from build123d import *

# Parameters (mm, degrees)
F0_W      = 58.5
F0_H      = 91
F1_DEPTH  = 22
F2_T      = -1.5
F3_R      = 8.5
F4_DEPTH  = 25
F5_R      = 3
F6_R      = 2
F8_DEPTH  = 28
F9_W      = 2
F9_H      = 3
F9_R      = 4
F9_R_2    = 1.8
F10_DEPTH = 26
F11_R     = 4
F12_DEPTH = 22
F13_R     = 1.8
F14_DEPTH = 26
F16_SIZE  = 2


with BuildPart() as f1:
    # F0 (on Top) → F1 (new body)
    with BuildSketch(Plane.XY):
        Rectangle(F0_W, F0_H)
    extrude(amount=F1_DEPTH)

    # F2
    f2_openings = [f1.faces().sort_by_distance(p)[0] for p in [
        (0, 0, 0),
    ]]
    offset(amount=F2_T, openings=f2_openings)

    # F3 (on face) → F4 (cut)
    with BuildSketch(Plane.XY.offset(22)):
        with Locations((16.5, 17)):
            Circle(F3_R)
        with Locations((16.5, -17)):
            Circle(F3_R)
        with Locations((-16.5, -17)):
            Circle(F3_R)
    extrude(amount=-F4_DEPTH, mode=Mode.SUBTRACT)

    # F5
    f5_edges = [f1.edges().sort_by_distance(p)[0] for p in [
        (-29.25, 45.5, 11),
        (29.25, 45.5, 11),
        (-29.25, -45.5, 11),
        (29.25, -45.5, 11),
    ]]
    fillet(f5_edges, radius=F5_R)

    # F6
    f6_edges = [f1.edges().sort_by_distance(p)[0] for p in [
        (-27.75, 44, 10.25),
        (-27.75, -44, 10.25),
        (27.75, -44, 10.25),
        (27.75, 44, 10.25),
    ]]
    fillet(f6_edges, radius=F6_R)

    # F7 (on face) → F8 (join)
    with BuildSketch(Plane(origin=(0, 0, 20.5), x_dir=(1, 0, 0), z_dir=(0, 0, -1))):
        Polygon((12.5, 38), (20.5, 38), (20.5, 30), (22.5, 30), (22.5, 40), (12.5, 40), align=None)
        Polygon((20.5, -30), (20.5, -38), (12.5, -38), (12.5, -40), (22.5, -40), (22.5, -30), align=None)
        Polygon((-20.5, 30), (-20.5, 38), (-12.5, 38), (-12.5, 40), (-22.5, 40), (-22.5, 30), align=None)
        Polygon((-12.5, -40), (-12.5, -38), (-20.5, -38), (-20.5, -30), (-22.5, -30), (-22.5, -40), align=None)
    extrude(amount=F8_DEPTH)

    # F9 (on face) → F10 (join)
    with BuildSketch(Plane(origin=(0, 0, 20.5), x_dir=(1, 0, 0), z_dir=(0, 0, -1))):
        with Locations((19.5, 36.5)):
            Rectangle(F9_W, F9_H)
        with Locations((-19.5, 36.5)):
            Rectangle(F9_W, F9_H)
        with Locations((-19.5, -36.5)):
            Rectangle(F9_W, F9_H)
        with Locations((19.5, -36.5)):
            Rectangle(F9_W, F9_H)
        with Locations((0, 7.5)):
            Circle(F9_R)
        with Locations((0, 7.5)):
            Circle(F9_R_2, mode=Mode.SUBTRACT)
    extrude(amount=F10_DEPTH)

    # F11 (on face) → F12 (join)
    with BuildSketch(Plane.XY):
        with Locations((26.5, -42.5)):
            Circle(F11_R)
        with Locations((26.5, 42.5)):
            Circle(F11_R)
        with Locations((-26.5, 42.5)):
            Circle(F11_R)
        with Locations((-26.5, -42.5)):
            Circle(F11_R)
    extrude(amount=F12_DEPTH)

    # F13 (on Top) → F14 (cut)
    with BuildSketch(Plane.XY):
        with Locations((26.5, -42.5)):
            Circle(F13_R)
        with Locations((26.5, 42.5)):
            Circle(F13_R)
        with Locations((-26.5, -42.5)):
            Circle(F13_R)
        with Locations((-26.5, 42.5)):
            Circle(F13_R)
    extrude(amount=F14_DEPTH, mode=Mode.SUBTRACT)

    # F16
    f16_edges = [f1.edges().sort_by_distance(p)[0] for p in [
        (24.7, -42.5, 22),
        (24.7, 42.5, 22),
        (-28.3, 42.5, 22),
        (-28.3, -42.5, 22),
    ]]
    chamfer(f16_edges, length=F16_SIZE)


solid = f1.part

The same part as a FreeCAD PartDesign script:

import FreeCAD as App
import Part
import Sketcher
from FreeCAD import Vector
Q = App.Units.Quantity


def edges_at(feature, points):
    """Names of the edges that pass closest to the given points."""
    edges = feature.Shape.Edges
    near = lambda p: min(range(len(edges)), key=lambda i: edges[i].distToShape(Part.Vertex(*p))[0])
    return sorted({f"Edge{near(p) + 1}" for p in points})


def faces_at(feature, points):
    """Names of the faces that lie closest to the given points."""
    faces = feature.Shape.Faces
    near = lambda p: min(range(len(faces)), key=lambda i: faces[i].distToShape(Part.Vertex(*p))[0])
    return sorted({f"Face{near(p) + 1}" for p in points})


def add_polygon(sketch, points):
    """Adds a closed chain of lines whose ends are joined by coincident constraints."""
    first, n = sketch.GeometryCount, len(points)
    for a, b in zip(points, points[1:] + points[:1]):
        sketch.addGeometry(Part.LineSegment(App.Vector(*a, 0), App.Vector(*b, 0)), False)
    for i in range(n):
        sketch.addConstraint(Sketcher.Constraint("Coincident", first + i, 2, first + (i + 1) % n, 1))

doc = App.newDocument("Part")
params = doc.addObject("Spreadsheet::Sheet", "Params")
for row, (alias, value) in enumerate([
    ("sketch1_height", "91 mm"),
    ("sketch1_width", "58.5 mm"),
    ("pad1_length", "22 mm"),
    ("thickness_wall", "1.5 mm"),
    ("sketch2_diameter", "17 mm"),
    ("pocket1_length", "25 mm"),
    ("fillet_radius", "3 mm"),
    ("fillet2_radius", "2 mm"),
    ("sketch3_width", "8 mm"),
    ("sketch3_width2", "2 mm"),
    ("pad2_length", "28 mm"),
    ("sketch4_diameter", "8 mm"),
    ("sketch4_diameter2", "3.6 mm"),
    ("sketch4_width", "2 mm"),
    ("sketch4_height", "3 mm"),
    ("pad3_length", "26 mm"),
    ("sketch5_diameter", "8 mm"),
    ("pad4_length", "22 mm"),
    ("sketch6_diameter", "3.6 mm"),
    ("pocket2_length", "26 mm"),
    ("chamfer_size", "2 mm"),
], start=1):
    params.set(f"A{row}", alias)
    params.set(f"B{row}", "=" + value)
    params.setAlias(f"B{row}", alias)

body = doc.addObject("PartDesign::Body", "Body")

sketch1 = body.newObject("Sketcher::SketchObject", "Sketch")
sketch1.AttachmentSupport = (doc.getObject("XY_Plane"), [""])
sketch1.MapMode = "FlatFace"
add_polygon(sketch1, [(-29.25, 45.5), (-29.25, -45.5), (29.25, -45.5), (29.25, 45.5)])
sketch1.addConstraint(Sketcher.Constraint("Vertical", 0))
sketch1.addConstraint(Sketcher.Constraint("Horizontal", 1))
sketch1.addConstraint(Sketcher.Constraint("Vertical", 2))
sketch1.addConstraint(Sketcher.Constraint("Horizontal", 3))
sketch1.addConstraint(Sketcher.Constraint("Symmetric", 0, 2, 2, 2, -1, 1))
sketch1.addConstraint(Sketcher.Constraint("DistanceY", 0, 2, 0, 1, Q("91 mm")))
sketch1.addConstraint(Sketcher.Constraint("DistanceX", 1, 1, 1, 2, Q("58.5 mm")))
sketch1.setExpression("Constraints[9]", "Params.sketch1_height")
sketch1.setExpression("Constraints[10]", "Params.sketch1_width")
pad1 = body.newObject("PartDesign::Pad", "Pad")
pad1.Profile = sketch1
pad1.setExpression("Length", "Params.pad1_length")
doc.recompute()

thickness = body.newObject("PartDesign::Thickness", "Thickness")
thickness.Base = (pad1, faces_at(pad1, [(0, 0, 0)]))
thickness.setExpression("Value", "Params.thickness_wall")
thickness.Reversed = True
thickness.Join = "Arc"

sketch2 = body.newObject("Sketcher::SketchObject", "Sketch001")
sketch2.AttachmentSupport = (doc.getObject("XY_Plane"), [""])
sketch2.MapMode = "FlatFace"
sketch2.AttachmentOffset = App.Placement(Vector(0, 0, 22), App.Rotation())
sketch2.addGeometry(Part.Circle(Vector(16.5, 17, 0), Vector(0, 0, 1), 8.5), False)
sketch2.addGeometry(Part.Circle(Vector(16.5, -17, 0), Vector(0, 0, 1), 8.5), False)
sketch2.addGeometry(Part.Circle(Vector(-16.5, -17, 0), Vector(0, 0, 1), 8.5), False)
sketch2.addConstraint(Sketcher.Constraint("Equal", 0, 1))
sketch2.addConstraint(Sketcher.Constraint("Equal", 1, 2))
sketch2.addConstraint(Sketcher.Constraint("Symmetric", 0, 3, 2, 3, -1, 1))
sketch2.addConstraint(Sketcher.Constraint("Symmetric", 1, 3, 2, 3, -2))
sketch2.addConstraint(Sketcher.Constraint("Diameter", 0, Q("17 mm")))
sketch2.addConstraint(Sketcher.Constraint("DistanceY", -1, 1, 0, 3, Q("17 mm")))
sketch2.addConstraint(Sketcher.Constraint("DistanceX", 2, 3, 1, 3, Q("33 mm")))
sketch2.setExpression("Constraints[4]", "Params.sketch2_diameter")
pocket1 = body.newObject("PartDesign::Pocket", "Pocket")
pocket1.Profile = sketch2
pocket1.setExpression("Length", "Params.pocket1_length")
doc.recompute()

fillet = body.newObject("PartDesign::Fillet", "Fillet")
fillet.Base = (pocket1, edges_at(pocket1, [
    (-29.25, 45.5, 11),
    (29.25, 45.5, 11),
    (-29.25, -45.5, 11),
    (29.25, -45.5, 11),
]))
fillet.setExpression("Radius", "Params.fillet_radius")
doc.recompute()

fillet2 = body.newObject("PartDesign::Fillet", "Fillet001")
fillet2.Base = (fillet, edges_at(fillet, [
    (-27.75, 44, 10.25),
    (-27.75, -44, 10.25),
    (27.75, -44, 10.25),
    (27.75, 44, 10.25),
]))
fillet2.setExpression("Radius", "Params.fillet2_radius")

sketch3 = body.newObject("Sketcher::SketchObject", "Sketch002")
sketch3.AttachmentSupport = (doc.getObject("XY_Plane"), [""])
sketch3.MapMode = "FlatFace"
sketch3.AttachmentOffset = App.Placement(Vector(0, 0, 20.5), App.Rotation())
add_polygon(sketch3, [(12.5, -38), (20.5, -38), (20.5, -30), (22.5, -30), (22.5, -40), (12.5, -40)])
add_polygon(sketch3, [(20.5, 30), (20.5, 38), (12.5, 38), (12.5, 40), (22.5, 40), (22.5, 30)])
add_polygon(sketch3, [(-20.5, -30), (-20.5, -38), (-12.5, -38), (-12.5, -40), (-22.5, -40), (-22.5, -30)])
add_polygon(sketch3, [(-12.5, 40), (-12.5, 38), (-20.5, 38), (-20.5, 30), (-22.5, 30), (-22.5, 40)])
sketch3.addConstraint(Sketcher.Constraint("Horizontal", 0))
sketch3.addConstraint(Sketcher.Constraint("Vertical", 1))
sketch3.addConstraint(Sketcher.Constraint("Horizontal", 2))
sketch3.addConstraint(Sketcher.Constraint("Vertical", 3))
sketch3.addConstraint(Sketcher.Constraint("Horizontal", 4))
sketch3.addConstraint(Sketcher.Constraint("Vertical", 5))
sketch3.addConstraint(Sketcher.Constraint("Vertical", 6))
sketch3.addConstraint(Sketcher.Constraint("Horizontal", 7))
sketch3.addConstraint(Sketcher.Constraint("Vertical", 8))
sketch3.addConstraint(Sketcher.Constraint("Horizontal", 9))
sketch3.addConstraint(Sketcher.Constraint("Vertical", 10))
sketch3.addConstraint(Sketcher.Constraint("Horizontal", 11))
sketch3.addConstraint(Sketcher.Constraint("Vertical", 12))
sketch3.addConstraint(Sketcher.Constraint("Horizontal", 13))
sketch3.addConstraint(Sketcher.Constraint("Vertical", 14))
sketch3.addConstraint(Sketcher.Constraint("Horizontal", 15))
sketch3.addConstraint(Sketcher.Constraint("Vertical", 16))
sketch3.addConstraint(Sketcher.Constraint("Horizontal", 17))
sketch3.addConstraint(Sketcher.Constraint("Vertical", 18))
sketch3.addConstraint(Sketcher.Constraint("Horizontal", 19))
sketch3.addConstraint(Sketcher.Constraint("Vertical", 20))
sketch3.addConstraint(Sketcher.Constraint("Horizontal", 21))
sketch3.addConstraint(Sketcher.Constraint("Vertical", 22))
sketch3.addConstraint(Sketcher.Constraint("Horizontal", 23))
sketch3.addConstraint(Sketcher.Constraint("Symmetric", 6, 2, 12, 2, -1, 1))
sketch3.addConstraint(Sketcher.Constraint("Symmetric", 8, 2, 14, 2, -1, 1))
sketch3.addConstraint(Sketcher.Constraint("Symmetric", 10, 2, 16, 2, -1, 1))
sketch3.addConstraint(Sketcher.Constraint("Symmetric", 5, 2, 18, 2, -1, 1))
sketch3.addConstraint(Sketcher.Constraint("Symmetric", 1, 2, 20, 2, -1, 1))
sketch3.addConstraint(Sketcher.Constraint("Symmetric", 3, 2, 22, 2, -1, 1))
sketch3.addConstraint(Sketcher.Constraint("Symmetric", 0, 2, 12, 2, -2))
sketch3.addConstraint(Sketcher.Constraint("Symmetric", 4, 2, 14, 2, -2))
sketch3.addConstraint(Sketcher.Constraint("Symmetric", 2, 2, 16, 2, -2))
sketch3.addConstraint(Sketcher.Constraint("Equal", 19, 1))
sketch3.addConstraint(Sketcher.Constraint("Equal", 23, 3))
sketch3.addConstraint(Sketcher.Constraint("DistanceX", 0, 1, 0, 2, Q("8 mm")))
sketch3.addConstraint(Sketcher.Constraint("DistanceX", 2, 1, 2, 2, Q("2 mm")))
sketch3.addConstraint(Sketcher.Constraint("DistanceY", 0, 2, -1, 1, Q("38 mm")))
sketch3.addConstraint(Sketcher.Constraint("DistanceX", 12, 2, 5, 2, Q("33 mm")))
sketch3.setExpression("Constraints[59]", "Params.sketch3_width")
sketch3.setExpression("Constraints[60]", "Params.sketch3_width2")
pad2 = body.newObject("PartDesign::Pad", "Pad001")
pad2.Profile = sketch3
pad2.setExpression("Length", "Params.pad2_length")
pad2.Reversed = True

sketch4 = body.newObject("Sketcher::SketchObject", "Sketch003")
sketch4.AttachmentSupport = (doc.getObject("XY_Plane"), [""])
sketch4.MapMode = "FlatFace"
sketch4.AttachmentOffset = App.Placement(Vector(0, 0, 20.5), App.Rotation())
add_polygon(sketch4, [(18.5, -38), (18.5, -35), (20.5, -35), (20.5, -38)])
add_polygon(sketch4, [(-20.5, -38), (-20.5, -35), (-18.5, -35), (-18.5, -38)])
add_polygon(sketch4, [(-20.5, 35), (-20.5, 38), (-18.5, 38), (-18.5, 35)])
add_polygon(sketch4, [(18.5, 35), (18.5, 38), (20.5, 38), (20.5, 35)])
sketch4.addGeometry(Part.Circle(Vector(0, -7.5, 0), Vector(0, 0, 1), 4), False)
sketch4.addGeometry(Part.Circle(Vector(0, -7.5, 0), Vector(0, 0, 1), 1.8), False)
sketch4.addConstraint(Sketcher.Constraint("Vertical", 0))
sketch4.addConstraint(Sketcher.Constraint("Horizontal", 1))
sketch4.addConstraint(Sketcher.Constraint("Vertical", 2))
sketch4.addConstraint(Sketcher.Constraint("Horizontal", 3))
sketch4.addConstraint(Sketcher.Constraint("Vertical", 4))
sketch4.addConstraint(Sketcher.Constraint("Horizontal", 5))
sketch4.addConstraint(Sketcher.Constraint("Vertical", 6))
sketch4.addConstraint(Sketcher.Constraint("Horizontal", 7))
sketch4.addConstraint(Sketcher.Constraint("Vertical", 8))
sketch4.addConstraint(Sketcher.Constraint("Horizontal", 9))
sketch4.addConstraint(Sketcher.Constraint("Vertical", 10))
sketch4.addConstraint(Sketcher.Constraint("Horizontal", 11))
sketch4.addConstraint(Sketcher.Constraint("Vertical", 12))
sketch4.addConstraint(Sketcher.Constraint("Horizontal", 13))
sketch4.addConstraint(Sketcher.Constraint("Vertical", 14))
sketch4.addConstraint(Sketcher.Constraint("Horizontal", 15))
sketch4.addConstraint(Sketcher.Constraint("Coincident", 17, 3, 16, 3))
sketch4.addConstraint(Sketcher.Constraint("Symmetric", 2, 2, 8, 2, -1, 1))
sketch4.addConstraint(Sketcher.Constraint("Symmetric", 0, 2, 10, 2, -1, 1))
sketch4.addConstraint(Sketcher.Constraint("Symmetric", 6, 2, 12, 2, -1, 1))
sketch4.addConstraint(Sketcher.Constraint("Symmetric", 4, 2, 14, 2, -1, 1))
sketch4.addConstraint(Sketcher.Constraint("Symmetric", 1, 2, 4, 2, -2))
sketch4.addConstraint(Sketcher.Constraint("Symmetric", 3, 2, 6, 2, -2))
sketch4.addConstraint(Sketcher.Constraint("PointOnObject", 16, 3, -2))
sketch4.addConstraint(Sketcher.Constraint("Diameter", 16, Q("8 mm")))
sketch4.addConstraint(Sketcher.Constraint("Diameter", 17, Q("3.6 mm")))
sketch4.addConstraint(Sketcher.Constraint("DistanceX", 1, 1, 1, 2, Q("2 mm")))
sketch4.addConstraint(Sketcher.Constraint("DistanceY", 0, 1, 0, 2, Q("3 mm")))
sketch4.addConstraint(Sketcher.Constraint("DistanceY", 0, 2, -1, 1, Q("35 mm")))
sketch4.addConstraint(Sketcher.Constraint("DistanceX", 4, 2, 0, 2, Q("39 mm")))
sketch4.addConstraint(Sketcher.Constraint("DistanceY", 16, 3, -1, 1, Q("7.5 mm")))
sketch4.setExpression("Constraints[40]", "Params.sketch4_diameter")
sketch4.setExpression("Constraints[41]", "Params.sketch4_diameter2")
sketch4.setExpression("Constraints[42]", "Params.sketch4_width")
sketch4.setExpression("Constraints[43]", "Params.sketch4_height")
pad3 = body.newObject("PartDesign::Pad", "Pad002")
pad3.Profile = sketch4
pad3.setExpression("Length", "Params.pad3_length")
pad3.Reversed = True

sketch5 = body.newObject("Sketcher::SketchObject", "Sketch004")
sketch5.AttachmentSupport = (doc.getObject("XY_Plane"), [""])
sketch5.MapMode = "FlatFace"
sketch5.addGeometry(Part.Circle(Vector(26.5, -42.5, 0), Vector(0, 0, 1), 4), False)
sketch5.addGeometry(Part.Circle(Vector(26.5, 42.5, 0), Vector(0, 0, 1), 4), False)
sketch5.addGeometry(Part.Circle(Vector(-26.5, 42.5, 0), Vector(0, 0, 1), 4), False)
sketch5.addGeometry(Part.Circle(Vector(-26.5, -42.5, 0), Vector(0, 0, 1), 4), False)
sketch5.addConstraint(Sketcher.Constraint("Equal", 0, 1))
sketch5.addConstraint(Sketcher.Constraint("Equal", 1, 2))
sketch5.addConstraint(Sketcher.Constraint("Equal", 2, 3))
sketch5.addConstraint(Sketcher.Constraint("Symmetric", 0, 3, 2, 3, -1, 1))
sketch5.addConstraint(Sketcher.Constraint("Symmetric", 1, 3, 3, 3, -1, 1))
sketch5.addConstraint(Sketcher.Constraint("Symmetric", 1, 3, 2, 3, -2))
sketch5.addConstraint(Sketcher.Constraint("Diameter", 0, Q("8 mm")))
sketch5.addConstraint(Sketcher.Constraint("DistanceY", 0, 3, 1, 3, Q("85 mm")))
sketch5.addConstraint(Sketcher.Constraint("DistanceX", 2, 3, 1, 3, Q("53 mm")))
sketch5.setExpression("Constraints[6]", "Params.sketch5_diameter")
pad4 = body.newObject("PartDesign::Pad", "Pad003")
pad4.Profile = sketch5
pad4.setExpression("Length", "Params.pad4_length")

sketch6 = body.newObject("Sketcher::SketchObject", "Sketch005")
sketch6.AttachmentSupport = (doc.getObject("XY_Plane"), [""])
sketch6.MapMode = "FlatFace"
sketch6.addGeometry(Part.Circle(Vector(26.5, -42.5, 0), Vector(0, 0, 1), 1.8), False)
sketch6.addGeometry(Part.Circle(Vector(26.5, 42.5, 0), Vector(0, 0, 1), 1.8), False)
sketch6.addGeometry(Part.Circle(Vector(-26.5, -42.5, 0), Vector(0, 0, 1), 1.8), False)
sketch6.addGeometry(Part.Circle(Vector(-26.5, 42.5, 0), Vector(0, 0, 1), 1.8), False)
sketch6.addConstraint(Sketcher.Constraint("Equal", 0, 1))
sketch6.addConstraint(Sketcher.Constraint("Equal", 1, 2))
sketch6.addConstraint(Sketcher.Constraint("Equal", 2, 3))
sketch6.addConstraint(Sketcher.Constraint("Symmetric", 1, 3, 2, 3, -1, 1))
sketch6.addConstraint(Sketcher.Constraint("Symmetric", 0, 3, 3, 3, -1, 1))
sketch6.addConstraint(Sketcher.Constraint("Symmetric", 0, 3, 2, 3, -2))
sketch6.addConstraint(Sketcher.Constraint("Diameter", 0, Q("3.6 mm")))
sketch6.addConstraint(Sketcher.Constraint("DistanceY", 0, 3, 1, 3, Q("85 mm")))
sketch6.addConstraint(Sketcher.Constraint("DistanceX", 2, 3, 0, 3, Q("53 mm")))
sketch6.setExpression("Constraints[6]", "Params.sketch6_diameter")
pocket2 = body.newObject("PartDesign::Pocket", "Pocket001")
pocket2.Profile = sketch6
pocket2.setExpression("Length", "Params.pocket2_length")
pocket2.Reversed = True
doc.recompute()

chamfer = body.newObject("PartDesign::Chamfer", "Chamfer")
chamfer.Base = (pocket2, edges_at(pocket2, [
    (24.7, -42.5, 22),
    (24.7, 42.5, 22),
    (-28.3, 42.5, 22),
    (-28.3, -42.5, 22),
]))
chamfer.setExpression("Size", "Params.chamfer_size")

doc.recompute()
